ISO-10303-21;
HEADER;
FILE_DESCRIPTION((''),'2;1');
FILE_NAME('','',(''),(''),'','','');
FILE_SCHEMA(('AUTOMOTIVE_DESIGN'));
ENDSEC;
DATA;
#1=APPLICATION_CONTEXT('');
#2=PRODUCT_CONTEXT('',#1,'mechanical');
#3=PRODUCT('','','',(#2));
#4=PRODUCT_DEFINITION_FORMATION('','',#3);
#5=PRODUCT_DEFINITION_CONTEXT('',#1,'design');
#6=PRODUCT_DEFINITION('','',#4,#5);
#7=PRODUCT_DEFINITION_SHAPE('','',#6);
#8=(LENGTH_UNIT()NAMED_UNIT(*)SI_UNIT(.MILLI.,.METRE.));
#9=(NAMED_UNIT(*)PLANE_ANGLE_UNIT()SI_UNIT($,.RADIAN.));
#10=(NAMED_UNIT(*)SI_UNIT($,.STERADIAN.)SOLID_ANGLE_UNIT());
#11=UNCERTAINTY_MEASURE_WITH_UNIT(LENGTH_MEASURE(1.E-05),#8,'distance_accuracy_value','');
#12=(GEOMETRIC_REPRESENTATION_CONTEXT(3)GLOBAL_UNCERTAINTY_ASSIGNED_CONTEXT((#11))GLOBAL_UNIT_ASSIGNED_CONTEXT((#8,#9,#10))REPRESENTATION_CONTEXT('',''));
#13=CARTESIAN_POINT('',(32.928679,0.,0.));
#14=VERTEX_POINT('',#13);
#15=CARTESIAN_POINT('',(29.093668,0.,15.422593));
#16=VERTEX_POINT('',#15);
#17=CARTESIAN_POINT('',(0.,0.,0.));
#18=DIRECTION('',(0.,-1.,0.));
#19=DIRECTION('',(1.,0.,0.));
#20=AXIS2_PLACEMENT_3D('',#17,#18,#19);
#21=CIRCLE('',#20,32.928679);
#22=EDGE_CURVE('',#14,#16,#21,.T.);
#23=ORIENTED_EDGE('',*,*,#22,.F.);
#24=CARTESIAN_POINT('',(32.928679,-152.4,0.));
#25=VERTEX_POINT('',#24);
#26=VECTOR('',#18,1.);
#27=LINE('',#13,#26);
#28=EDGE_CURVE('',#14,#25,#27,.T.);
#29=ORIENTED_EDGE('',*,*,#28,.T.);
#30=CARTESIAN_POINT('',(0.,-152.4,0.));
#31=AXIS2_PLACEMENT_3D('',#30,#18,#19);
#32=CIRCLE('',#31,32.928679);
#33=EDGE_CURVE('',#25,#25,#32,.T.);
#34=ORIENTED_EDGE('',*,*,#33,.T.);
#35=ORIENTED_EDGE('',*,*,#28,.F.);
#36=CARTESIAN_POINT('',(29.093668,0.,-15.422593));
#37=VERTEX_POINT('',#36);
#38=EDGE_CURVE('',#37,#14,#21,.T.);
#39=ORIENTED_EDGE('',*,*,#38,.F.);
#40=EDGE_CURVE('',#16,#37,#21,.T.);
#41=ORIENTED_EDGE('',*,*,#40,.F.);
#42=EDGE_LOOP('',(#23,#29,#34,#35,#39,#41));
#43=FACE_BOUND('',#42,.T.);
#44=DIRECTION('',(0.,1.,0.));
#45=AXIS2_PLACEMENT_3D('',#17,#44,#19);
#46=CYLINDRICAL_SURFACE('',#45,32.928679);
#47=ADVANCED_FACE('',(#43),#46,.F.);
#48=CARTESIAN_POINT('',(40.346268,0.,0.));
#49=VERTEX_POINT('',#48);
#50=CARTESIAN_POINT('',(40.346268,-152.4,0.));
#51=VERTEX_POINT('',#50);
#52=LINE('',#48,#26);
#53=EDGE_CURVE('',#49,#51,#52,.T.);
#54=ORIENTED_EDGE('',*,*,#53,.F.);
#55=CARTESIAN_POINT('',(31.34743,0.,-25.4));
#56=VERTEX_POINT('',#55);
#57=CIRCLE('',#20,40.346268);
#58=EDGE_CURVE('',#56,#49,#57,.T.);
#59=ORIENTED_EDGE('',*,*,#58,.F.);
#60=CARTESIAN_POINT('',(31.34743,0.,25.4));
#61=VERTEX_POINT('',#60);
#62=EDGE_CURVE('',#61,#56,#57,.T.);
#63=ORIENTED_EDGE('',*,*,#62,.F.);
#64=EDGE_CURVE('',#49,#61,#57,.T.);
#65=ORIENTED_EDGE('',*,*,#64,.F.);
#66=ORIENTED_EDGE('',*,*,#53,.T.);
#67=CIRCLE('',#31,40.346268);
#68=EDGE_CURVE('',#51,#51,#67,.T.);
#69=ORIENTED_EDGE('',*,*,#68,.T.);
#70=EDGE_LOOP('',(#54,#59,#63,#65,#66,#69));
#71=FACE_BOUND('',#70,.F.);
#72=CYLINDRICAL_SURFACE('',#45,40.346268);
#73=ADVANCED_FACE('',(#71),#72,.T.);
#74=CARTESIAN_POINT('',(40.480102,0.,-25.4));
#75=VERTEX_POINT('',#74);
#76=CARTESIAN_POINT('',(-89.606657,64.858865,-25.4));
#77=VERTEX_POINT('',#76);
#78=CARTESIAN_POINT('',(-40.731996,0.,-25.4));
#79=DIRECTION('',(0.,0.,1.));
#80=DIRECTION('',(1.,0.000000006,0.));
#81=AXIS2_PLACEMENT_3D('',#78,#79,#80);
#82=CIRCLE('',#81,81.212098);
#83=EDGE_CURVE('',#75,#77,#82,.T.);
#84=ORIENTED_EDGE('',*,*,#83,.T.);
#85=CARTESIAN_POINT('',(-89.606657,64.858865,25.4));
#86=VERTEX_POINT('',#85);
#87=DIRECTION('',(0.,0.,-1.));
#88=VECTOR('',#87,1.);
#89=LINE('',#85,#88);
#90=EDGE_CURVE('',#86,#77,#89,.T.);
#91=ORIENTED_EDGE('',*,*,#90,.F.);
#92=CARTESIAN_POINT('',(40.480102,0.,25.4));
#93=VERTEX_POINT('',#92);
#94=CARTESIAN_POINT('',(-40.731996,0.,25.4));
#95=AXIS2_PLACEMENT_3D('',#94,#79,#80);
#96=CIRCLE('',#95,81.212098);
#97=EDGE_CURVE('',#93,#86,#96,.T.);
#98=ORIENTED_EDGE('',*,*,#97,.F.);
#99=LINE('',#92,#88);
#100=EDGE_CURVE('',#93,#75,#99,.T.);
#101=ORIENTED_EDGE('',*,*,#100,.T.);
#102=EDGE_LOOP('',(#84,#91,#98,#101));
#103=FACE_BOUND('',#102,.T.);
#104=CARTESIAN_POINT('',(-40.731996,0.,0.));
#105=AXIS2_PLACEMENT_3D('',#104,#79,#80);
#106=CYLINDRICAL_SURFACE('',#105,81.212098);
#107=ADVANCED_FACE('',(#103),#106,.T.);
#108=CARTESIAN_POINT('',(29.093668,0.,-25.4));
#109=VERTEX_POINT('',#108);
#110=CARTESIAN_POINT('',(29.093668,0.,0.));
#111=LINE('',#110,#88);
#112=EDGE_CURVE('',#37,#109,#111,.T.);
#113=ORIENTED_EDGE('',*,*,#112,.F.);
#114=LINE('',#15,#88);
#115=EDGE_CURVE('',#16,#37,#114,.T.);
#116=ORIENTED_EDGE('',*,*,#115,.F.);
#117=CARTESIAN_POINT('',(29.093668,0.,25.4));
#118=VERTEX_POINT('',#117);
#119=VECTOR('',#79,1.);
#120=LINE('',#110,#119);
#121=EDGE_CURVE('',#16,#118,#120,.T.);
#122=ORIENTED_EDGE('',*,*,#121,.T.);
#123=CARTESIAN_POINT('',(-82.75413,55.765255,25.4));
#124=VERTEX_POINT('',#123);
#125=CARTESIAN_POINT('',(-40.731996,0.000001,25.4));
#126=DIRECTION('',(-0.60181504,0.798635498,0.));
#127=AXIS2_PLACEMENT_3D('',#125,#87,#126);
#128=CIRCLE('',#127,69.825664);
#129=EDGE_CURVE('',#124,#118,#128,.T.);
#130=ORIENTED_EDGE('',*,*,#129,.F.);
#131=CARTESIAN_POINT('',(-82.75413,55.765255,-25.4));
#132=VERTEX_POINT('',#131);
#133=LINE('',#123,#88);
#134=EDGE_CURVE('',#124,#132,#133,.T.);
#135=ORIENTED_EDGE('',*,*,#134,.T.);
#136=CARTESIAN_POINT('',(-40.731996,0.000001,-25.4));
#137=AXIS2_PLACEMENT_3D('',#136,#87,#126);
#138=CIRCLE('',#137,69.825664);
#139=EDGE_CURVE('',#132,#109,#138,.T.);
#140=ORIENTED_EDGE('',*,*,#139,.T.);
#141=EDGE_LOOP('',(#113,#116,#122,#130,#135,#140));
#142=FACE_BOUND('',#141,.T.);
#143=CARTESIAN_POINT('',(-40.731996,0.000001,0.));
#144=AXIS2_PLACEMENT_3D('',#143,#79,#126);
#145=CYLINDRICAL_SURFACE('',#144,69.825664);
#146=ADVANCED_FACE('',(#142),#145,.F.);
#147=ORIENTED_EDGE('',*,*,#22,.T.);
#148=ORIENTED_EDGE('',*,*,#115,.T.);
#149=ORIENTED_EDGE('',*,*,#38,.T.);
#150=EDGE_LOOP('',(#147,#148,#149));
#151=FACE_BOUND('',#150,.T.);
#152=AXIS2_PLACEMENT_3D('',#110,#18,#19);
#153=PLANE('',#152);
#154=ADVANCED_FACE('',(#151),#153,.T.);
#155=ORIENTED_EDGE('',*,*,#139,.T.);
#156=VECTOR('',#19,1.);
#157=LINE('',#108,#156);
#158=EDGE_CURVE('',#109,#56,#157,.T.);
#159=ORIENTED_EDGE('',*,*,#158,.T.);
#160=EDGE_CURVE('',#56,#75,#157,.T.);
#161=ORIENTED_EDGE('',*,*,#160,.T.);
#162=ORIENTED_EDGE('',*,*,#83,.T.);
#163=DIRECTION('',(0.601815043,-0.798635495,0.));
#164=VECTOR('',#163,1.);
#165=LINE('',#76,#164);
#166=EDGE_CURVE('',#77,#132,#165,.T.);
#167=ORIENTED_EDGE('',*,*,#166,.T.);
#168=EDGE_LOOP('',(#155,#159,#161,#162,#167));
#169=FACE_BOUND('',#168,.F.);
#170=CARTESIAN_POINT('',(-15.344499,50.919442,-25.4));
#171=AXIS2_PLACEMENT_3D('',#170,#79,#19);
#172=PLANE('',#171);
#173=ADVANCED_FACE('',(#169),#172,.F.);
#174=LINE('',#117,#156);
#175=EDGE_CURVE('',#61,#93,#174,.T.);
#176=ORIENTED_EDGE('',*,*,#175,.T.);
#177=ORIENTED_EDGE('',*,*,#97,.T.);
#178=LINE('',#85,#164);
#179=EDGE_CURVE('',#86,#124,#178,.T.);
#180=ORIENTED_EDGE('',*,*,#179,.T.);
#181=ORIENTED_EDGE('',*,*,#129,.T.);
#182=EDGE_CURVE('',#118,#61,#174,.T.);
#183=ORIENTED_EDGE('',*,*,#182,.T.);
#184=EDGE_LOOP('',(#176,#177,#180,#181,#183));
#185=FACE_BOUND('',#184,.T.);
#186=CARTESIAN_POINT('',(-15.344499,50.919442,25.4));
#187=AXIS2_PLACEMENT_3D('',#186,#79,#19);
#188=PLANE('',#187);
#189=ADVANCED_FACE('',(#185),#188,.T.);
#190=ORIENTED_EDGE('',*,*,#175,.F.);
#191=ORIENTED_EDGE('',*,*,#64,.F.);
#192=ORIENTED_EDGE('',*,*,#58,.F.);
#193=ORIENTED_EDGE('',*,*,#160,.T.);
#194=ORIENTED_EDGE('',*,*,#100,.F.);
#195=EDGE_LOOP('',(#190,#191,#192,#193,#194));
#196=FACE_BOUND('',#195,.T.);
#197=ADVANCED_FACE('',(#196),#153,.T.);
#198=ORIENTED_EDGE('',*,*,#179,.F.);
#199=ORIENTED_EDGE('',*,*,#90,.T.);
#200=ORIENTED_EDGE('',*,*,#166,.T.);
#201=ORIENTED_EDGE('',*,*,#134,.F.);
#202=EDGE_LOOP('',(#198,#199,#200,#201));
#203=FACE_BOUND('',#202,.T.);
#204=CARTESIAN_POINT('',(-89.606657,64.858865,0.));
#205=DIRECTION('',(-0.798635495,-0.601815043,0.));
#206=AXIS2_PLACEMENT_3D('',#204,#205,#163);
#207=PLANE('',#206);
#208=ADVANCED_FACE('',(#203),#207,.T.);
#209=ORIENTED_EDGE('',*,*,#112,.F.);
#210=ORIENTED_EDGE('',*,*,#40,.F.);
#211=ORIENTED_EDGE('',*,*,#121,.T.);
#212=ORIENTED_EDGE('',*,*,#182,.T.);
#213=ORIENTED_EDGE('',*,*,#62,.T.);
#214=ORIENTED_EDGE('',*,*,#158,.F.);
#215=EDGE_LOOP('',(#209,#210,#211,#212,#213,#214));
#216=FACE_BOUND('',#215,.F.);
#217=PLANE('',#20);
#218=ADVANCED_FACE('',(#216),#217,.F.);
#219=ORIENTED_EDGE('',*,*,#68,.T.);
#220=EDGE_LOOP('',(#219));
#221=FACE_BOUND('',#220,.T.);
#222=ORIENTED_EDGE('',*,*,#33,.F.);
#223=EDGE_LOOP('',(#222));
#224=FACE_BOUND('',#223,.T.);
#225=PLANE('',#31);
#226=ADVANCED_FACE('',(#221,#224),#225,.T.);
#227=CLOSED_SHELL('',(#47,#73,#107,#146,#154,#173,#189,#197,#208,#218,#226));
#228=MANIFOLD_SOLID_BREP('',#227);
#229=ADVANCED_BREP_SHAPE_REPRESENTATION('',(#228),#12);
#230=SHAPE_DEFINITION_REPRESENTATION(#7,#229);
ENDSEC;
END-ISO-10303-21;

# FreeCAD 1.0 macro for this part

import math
import FreeCAD as App
import Part
import Sketcher
Q = App.Units.Quantity

doc = App.newDocument("Part")
body = doc.addObject("PartDesign::Body", "Body")

# Sketch on XZ plane
sketch1 = doc.addObject("Sketcher::SketchObject", "Sketch")
body.addObject(sketch1)
sketch1.AttachmentSupport = (doc.XZ_Plane, [""])
sketch1.MapMode = "FlatFace"
sketch1.addGeometry([
    Part.Circle(App.Vector(0, 0, 0), App.Vector(0, 0, 1), 40.346268),
    Part.Circle(App.Vector(0, 0, 0), App.Vector(0, 0, 1), 32.928679),
], False)
sketch1.addConstraint([
    Sketcher.Constraint("Coincident", 0, 3, -1, 1),
    Sketcher.Constraint("Coincident", 1, 3, -1, 1),
    Sketcher.Constraint("Diameter", 1, Q("65.857358 mm")),
    Sketcher.Constraint("Diameter", 0, Q("80.692536 mm")),
])
pad1 = doc.addObject("PartDesign::Pad", "Pad")
body.addObject(pad1)
pad1.Profile = sketch1
pad1.Length = Q("6 in")

# Sketch on XY plane
sketch2 = doc.addObject("Sketcher::SketchObject", "Sketch001")
body.addObject(sketch2)
sketch2.AttachmentSupport = (doc.XY_Plane, [""])
sketch2.MapMode = "FlatFace"
sketch2.addGeometry([
    Part.LineSegment(App.Vector(29.093668, 0, 0), App.Vector(40.480102, 0, 0)),
    Part.ArcOfCircle(Part.Circle(App.Vector(-40.731996, 0, 0), App.Vector(0, 0, 1), 81.212098), math.radians(0), math.radians(127)),
    Part.LineSegment(App.Vector(-89.606657, 64.858865, 0), App.Vector(-82.75413, 55.765255, 0)),
    Part.ArcOfCircle(Part.Circle(App.Vector(-40.731996, 0.000001, 0), App.Vector(0, 0, 1), 69.825664), math.radians(-0.000001), math.radians(127.000001)),
], False)
sketch2.addConstraint([
    Sketcher.Constraint("Coincident", 0, 2, 1, 1),
    Sketcher.Constraint("Coincident", 1, 2, 2, 1),
    Sketcher.Constraint("Coincident", 2, 2, 3, 2),
    Sketcher.Constraint("Coincident", 3, 1, 0, 1),
    Sketcher.Constraint("Horizontal", 0),
    Sketcher.Constraint("Coincident", 3, 3, 1, 3),
    Sketcher.Constraint("PointOnObject", 1, 3, -1),
    Sketcher.Constraint("PointOnObject", 0, 2, -1),
    Sketcher.Constraint("Angle", 2, Q("-52.999999 deg")),
    Sketcher.Constraint("Radius", 1, Q("81.212098 mm")),
    Sketcher.Constraint("Radius", 3, Q("69.825664 mm")),
    Sketcher.Constraint("DistanceX", 2, 2, -1, 1, Q("82.75413 mm")),
    Sketcher.Constraint("DistanceX", 1, 2, 3, 3, Q("48.874661 mm")),
])
pad2 = doc.addObject("PartDesign::Pad", "Pad001")
body.addObject(pad2)
pad2.Profile = sketch2
pad2.Type = "TwoLengths"
pad2.Length = Q("1 in")
pad2.Length2 = Q("1 in")

doc.recompute()
